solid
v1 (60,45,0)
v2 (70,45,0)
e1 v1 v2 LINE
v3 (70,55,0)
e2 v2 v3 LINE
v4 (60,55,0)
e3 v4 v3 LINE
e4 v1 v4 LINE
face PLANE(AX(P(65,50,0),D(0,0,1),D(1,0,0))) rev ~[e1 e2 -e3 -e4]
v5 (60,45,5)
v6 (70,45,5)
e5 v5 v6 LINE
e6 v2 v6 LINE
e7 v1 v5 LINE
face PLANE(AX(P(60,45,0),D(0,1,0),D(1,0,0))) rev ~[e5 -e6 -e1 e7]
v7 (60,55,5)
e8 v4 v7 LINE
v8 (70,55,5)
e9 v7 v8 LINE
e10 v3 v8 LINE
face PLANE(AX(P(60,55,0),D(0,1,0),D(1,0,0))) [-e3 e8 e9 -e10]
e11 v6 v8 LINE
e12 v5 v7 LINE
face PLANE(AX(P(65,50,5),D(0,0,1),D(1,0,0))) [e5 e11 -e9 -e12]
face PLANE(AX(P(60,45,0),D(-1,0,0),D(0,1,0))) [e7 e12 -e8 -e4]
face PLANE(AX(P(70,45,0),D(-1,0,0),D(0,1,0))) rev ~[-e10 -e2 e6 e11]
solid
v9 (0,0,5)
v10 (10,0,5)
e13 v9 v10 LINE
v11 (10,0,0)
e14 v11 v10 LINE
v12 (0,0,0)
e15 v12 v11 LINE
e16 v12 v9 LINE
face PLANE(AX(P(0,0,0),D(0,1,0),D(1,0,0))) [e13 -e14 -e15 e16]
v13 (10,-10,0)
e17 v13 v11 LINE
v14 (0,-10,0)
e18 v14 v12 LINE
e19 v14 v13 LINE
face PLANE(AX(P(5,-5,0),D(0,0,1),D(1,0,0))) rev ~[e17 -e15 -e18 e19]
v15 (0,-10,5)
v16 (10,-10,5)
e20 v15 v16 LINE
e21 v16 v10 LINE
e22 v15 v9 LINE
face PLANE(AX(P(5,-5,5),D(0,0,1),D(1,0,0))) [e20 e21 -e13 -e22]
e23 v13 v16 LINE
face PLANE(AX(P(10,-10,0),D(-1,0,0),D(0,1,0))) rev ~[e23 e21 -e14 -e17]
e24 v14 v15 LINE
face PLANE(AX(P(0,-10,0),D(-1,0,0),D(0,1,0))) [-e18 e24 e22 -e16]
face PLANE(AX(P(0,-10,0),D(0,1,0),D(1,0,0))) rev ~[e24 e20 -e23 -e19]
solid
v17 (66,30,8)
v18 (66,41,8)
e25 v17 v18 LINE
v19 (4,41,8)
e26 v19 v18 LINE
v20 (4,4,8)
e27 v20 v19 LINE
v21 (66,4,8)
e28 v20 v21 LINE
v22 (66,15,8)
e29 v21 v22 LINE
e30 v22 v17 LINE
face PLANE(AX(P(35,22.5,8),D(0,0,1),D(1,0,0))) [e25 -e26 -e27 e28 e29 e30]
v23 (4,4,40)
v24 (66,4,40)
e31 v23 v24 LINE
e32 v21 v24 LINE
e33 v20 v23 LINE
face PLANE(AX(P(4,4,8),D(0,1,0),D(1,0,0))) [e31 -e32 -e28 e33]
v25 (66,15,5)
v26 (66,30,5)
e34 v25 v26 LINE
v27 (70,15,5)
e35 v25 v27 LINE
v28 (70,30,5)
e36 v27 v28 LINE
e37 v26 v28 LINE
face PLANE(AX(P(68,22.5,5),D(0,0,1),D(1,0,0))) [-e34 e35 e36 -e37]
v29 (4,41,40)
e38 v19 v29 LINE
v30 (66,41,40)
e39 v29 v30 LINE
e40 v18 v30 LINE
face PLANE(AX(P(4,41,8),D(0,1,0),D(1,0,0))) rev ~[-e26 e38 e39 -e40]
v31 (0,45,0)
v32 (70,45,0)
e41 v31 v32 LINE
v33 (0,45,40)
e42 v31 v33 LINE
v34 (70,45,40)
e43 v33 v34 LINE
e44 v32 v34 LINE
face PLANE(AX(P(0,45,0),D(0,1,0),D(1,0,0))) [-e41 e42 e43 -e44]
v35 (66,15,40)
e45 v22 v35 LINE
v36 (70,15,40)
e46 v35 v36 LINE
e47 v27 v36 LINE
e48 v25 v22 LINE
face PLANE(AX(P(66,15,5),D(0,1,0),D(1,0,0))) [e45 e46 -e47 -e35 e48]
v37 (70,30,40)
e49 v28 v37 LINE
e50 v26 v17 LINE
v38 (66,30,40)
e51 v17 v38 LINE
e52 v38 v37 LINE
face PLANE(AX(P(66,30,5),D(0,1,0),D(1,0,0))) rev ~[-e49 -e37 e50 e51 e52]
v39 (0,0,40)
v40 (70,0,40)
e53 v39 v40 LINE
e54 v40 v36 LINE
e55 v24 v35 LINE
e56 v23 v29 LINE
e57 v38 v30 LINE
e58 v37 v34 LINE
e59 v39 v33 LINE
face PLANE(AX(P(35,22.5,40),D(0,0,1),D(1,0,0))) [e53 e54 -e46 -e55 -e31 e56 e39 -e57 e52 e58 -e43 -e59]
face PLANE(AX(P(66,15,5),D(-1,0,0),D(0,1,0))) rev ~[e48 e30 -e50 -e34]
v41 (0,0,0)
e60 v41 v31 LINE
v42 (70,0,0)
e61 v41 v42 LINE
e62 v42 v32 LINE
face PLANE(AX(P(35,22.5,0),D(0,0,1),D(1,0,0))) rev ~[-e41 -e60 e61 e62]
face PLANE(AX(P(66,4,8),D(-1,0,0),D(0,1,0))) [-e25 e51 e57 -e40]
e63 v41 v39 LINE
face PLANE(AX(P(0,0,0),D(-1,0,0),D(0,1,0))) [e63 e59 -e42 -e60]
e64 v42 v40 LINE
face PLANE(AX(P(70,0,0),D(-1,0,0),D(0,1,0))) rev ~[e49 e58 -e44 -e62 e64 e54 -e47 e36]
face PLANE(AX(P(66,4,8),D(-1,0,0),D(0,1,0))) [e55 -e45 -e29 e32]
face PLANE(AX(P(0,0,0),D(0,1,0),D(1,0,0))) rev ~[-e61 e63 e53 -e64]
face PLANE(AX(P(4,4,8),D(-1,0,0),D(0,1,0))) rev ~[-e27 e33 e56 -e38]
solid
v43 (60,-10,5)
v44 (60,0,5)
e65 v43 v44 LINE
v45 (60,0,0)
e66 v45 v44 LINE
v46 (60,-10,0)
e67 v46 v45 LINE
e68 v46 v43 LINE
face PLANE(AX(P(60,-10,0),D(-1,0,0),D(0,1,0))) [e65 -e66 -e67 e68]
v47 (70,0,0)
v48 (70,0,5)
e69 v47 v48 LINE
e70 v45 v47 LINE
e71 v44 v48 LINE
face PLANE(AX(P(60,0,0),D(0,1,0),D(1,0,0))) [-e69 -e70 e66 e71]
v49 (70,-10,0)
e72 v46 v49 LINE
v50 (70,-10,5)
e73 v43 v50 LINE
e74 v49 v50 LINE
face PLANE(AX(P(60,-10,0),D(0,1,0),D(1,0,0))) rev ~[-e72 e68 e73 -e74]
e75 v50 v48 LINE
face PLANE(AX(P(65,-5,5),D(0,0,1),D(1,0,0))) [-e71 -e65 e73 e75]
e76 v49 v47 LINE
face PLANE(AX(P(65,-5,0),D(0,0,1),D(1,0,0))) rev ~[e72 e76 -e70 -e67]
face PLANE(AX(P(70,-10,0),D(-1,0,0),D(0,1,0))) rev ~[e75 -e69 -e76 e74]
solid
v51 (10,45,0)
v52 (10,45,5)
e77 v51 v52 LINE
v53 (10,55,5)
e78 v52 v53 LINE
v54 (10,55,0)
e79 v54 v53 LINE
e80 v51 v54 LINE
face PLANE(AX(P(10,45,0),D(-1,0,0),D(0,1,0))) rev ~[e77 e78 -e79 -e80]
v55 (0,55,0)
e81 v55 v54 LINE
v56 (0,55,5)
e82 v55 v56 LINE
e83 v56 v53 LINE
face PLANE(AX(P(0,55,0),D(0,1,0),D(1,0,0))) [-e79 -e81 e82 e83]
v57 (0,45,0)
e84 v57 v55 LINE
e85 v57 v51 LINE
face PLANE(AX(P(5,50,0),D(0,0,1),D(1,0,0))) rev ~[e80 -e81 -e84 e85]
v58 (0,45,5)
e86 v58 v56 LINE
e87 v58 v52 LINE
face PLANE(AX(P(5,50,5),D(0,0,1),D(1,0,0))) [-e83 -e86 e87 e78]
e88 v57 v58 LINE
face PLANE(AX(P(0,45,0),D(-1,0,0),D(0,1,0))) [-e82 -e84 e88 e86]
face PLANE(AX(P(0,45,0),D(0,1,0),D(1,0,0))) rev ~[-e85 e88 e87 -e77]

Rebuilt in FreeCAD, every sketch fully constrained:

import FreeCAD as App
import Part
import Sketcher
from FreeCAD import Vector
Q = App.Units.Quantity

doc = App.newDocument("Part")
body = doc.addObject("PartDesign::Body", "Body")

# Sketch on XY plane
sketch1 = body.newObject("Sketcher::SketchObject", "Sketch")
sketch1.AttachmentSupport = (doc.getObject("XY_Plane"), [""])
sketch1.MapMode = "FlatFace"
sketch1.addGeometry([
    Part.LineSegment(Vector(0, 0, 0), Vector(0, -10, 0)),
    Part.LineSegment(Vector(0, -10, 0), Vector(10, -10, 0)),
    Part.LineSegment(Vector(10, -10, 0), Vector(10, 0, 0)),
    Part.LineSegment(Vector(10, 0, 0), Vector(0, 0, 0)),
], False)
sketch1.addConstraint([
    Sketcher.Constraint("Coincident", 0, 2, 1, 1),
    Sketcher.Constraint("Coincident", 1, 2, 2, 1),
    Sketcher.Constraint("Coincident", 2, 2, 3, 1),
    Sketcher.Constraint("Coincident", 3, 2, 0, 1),
    Sketcher.Constraint("Vertical", 0),
    Sketcher.Constraint("Horizontal", 1),
    Sketcher.Constraint("Vertical", 2),
    Sketcher.Constraint("Horizontal", 3),
    Sketcher.Constraint("Coincident", 3, 2, -1, 1),
    Sketcher.Constraint("Equal", 3, 0),
    Sketcher.Constraint("DistanceX", 1, 1, 1, 2, Q("10 mm")),
])
pad1 = body.newObject("PartDesign::Pad", "Pad")
pad1.Profile = sketch1
pad1.Length = 5
body2 = doc.addObject("PartDesign::Body", "Body001")

# Sketch on XY plane
sketch2 = body2.newObject("Sketcher::SketchObject", "Sketch001")
sketch2.AttachmentSupport = (doc.getObject("XY_Plane001"), [""])
sketch2.MapMode = "FlatFace"
sketch2.addGeometry([
    Part.LineSegment(Vector(60, 0, 0), Vector(60, -10, 0)),
    Part.LineSegment(Vector(60, -10, 0), Vector(70, -10, 0)),
    Part.LineSegment(Vector(70, -10, 0), Vector(70, 0, 0)),
    Part.LineSegment(Vector(70, 0, 0), Vector(60, 0, 0)),
], False)
sketch2.addConstraint([
    Sketcher.Constraint("Coincident", 0, 2, 1, 1),
    Sketcher.Constraint("Coincident", 1, 2, 2, 1),
    Sketcher.Constraint("Coincident", 2, 2, 3, 1),
    Sketcher.Constraint("Coincident", 3, 2, 0, 1),
    Sketcher.Constraint("Vertical", 0),
    Sketcher.Constraint("Horizontal", 1),
    Sketcher.Constraint("Vertical", 2),
    Sketcher.Constraint("Horizontal", 3),
    Sketcher.Constraint("PointOnObject", 2, 2, -1),
    Sketcher.Constraint("Equal", 3, 0),
    Sketcher.Constraint("DistanceX", 1, 1, 1, 2, Q("10 mm")),
    Sketcher.Constraint("DistanceX", -1, 1, 0, 2, Q("60 mm")),
])
pad2 = body2.newObject("PartDesign::Pad", "Pad001")
pad2.Profile = sketch2
pad2.Length = 5
body3 = doc.addObject("PartDesign::Body", "Body002")

# Sketch on XY plane
sketch3 = body3.newObject("Sketcher::SketchObject", "Sketch002")
sketch3.AttachmentSupport = (doc.getObject("XY_Plane002"), [""])
sketch3.MapMode = "FlatFace"
sketch3.addGeometry([
    Part.LineSegment(Vector(0, 55, 0), Vector(0, 45, 0)),
    Part.LineSegment(Vector(0, 45, 0), Vector(10, 45, 0)),
    Part.LineSegment(Vector(10, 45, 0), Vector(10, 55, 0)),
    Part.LineSegment(Vector(10, 55, 0), Vector(0, 55, 0)),
], False)
sketch3.addConstraint([
    Sketcher.Constraint("Coincident", 0, 2, 1, 1),
    Sketcher.Constraint("Coincident", 1, 2, 2, 1),
    Sketcher.Constraint("Coincident", 2, 2, 3, 1),
    Sketcher.Constraint("Coincident", 3, 2, 0, 1),
    Sketcher.Constraint("Vertical", 0),
    Sketcher.Constraint("Horizontal", 1),
    Sketcher.Constraint("Vertical", 2),
    Sketcher.Constraint("Horizontal", 3),
    Sketcher.Constraint("PointOnObject", 0, 2, -2),
    Sketcher.Constraint("Equal", 3, 0),
    Sketcher.Constraint("DistanceX", 1, 1, 1, 2, Q("10 mm")),
    Sketcher.Constraint("DistanceY", -1, 1, 0, 2, Q("45 mm")),
])
pad3 = body3.newObject("PartDesign::Pad", "Pad002")
pad3.Profile = sketch3
pad3.Length = 5
body4 = doc.addObject("PartDesign::Body", "Body003")

# Sketch on XY plane
sketch4 = body4.newObject("Sketcher::SketchObject", "Sketch003")
sketch4.AttachmentSupport = (doc.getObject("XY_Plane003"), [""])
sketch4.MapMode = "FlatFace"
sketch4.addGeometry([
    Part.LineSegment(Vector(60, 55, 0), Vector(60, 45, 0)),
    Part.LineSegment(Vector(60, 45, 0), Vector(70, 45, 0)),
    Part.LineSegment(Vector(70, 45, 0), Vector(70, 55, 0)),
    Part.LineSegment(Vector(70, 55, 0), Vector(60, 55, 0)),
], False)
sketch4.addConstraint([
    Sketcher.Constraint("Coincident", 0, 2, 1, 1),
    Sketcher.Constraint("Coincident", 1, 2, 2, 1),
    Sketcher.Constraint("Coincident", 2, 2, 3, 1),
    Sketcher.Constraint("Coincident", 3, 2, 0, 1),
    Sketcher.Constraint("Vertical", 0),
    Sketcher.Constraint("Horizontal", 1),
    Sketcher.Constraint("Vertical", 2),
    Sketcher.Constraint("Horizontal", 3),
    Sketcher.Constraint("Equal", 3, 0),
    Sketcher.Constraint("DistanceX", 1, 1, 1, 2, Q("10 mm")),
    Sketcher.Constraint("DistanceX", -1, 1, 0, 2, Q("60 mm")),
    Sketcher.Constraint("DistanceY", -1, 1, 0, 2, Q("45 mm")),
])
pad4 = body4.newObject("PartDesign::Pad", "Pad003")
pad4.Profile = sketch4
pad4.Length = 5
body5 = doc.addObject("PartDesign::Body", "Body004")

# Sketch on XY plane
sketch5 = body5.newObject("Sketcher::SketchObject", "Sketch004")
sketch5.AttachmentSupport = (doc.getObject("XY_Plane004"), [""])
sketch5.MapMode = "FlatFace"
sketch5.AttachmentOffset = App.Placement(Vector(0, 0, 5), App.Rotation())
sketch5.addGeometry([
    Part.LineSegment(Vector(66, 30, 0), Vector(66, 15, 0)),
    Part.LineSegment(Vector(66, 15, 0), Vector(70, 15, 0)),
    Part.LineSegment(Vector(70, 15, 0), Vector(70, 30, 0)),
    Part.LineSegment(Vector(70, 30, 0), Vector(66, 30, 0)),
], False)
sketch5.addConstraint([
    Sketcher.Constraint("Coincident", 0, 2, 1, 1),
    Sketcher.Constraint("Coincident", 1, 2, 2, 1),
    Sketcher.Constraint("Coincident", 2, 2, 3, 1),
    Sketcher.Constraint("Coincident", 3, 2, 0, 1),
    Sketcher.Constraint("Vertical", 0),
    Sketcher.Constraint("Horizontal", 1),
    Sketcher.Constraint("Vertical", 2),
    Sketcher.Constraint("Horizontal", 3),
    Sketcher.Constraint("DistanceX", 1, 1, 1, 2, Q("4 mm")),
    Sketcher.Constraint("DistanceY", 0, 2, 0, 1, Q("15 mm")),
    Sketcher.Constraint("DistanceX", -1, 1, 0, 2, Q("66 mm")),
    Sketcher.Constraint("DistanceY", -1, 1, 0, 2, Q("15 mm")),
])
pad5 = body5.newObject("PartDesign::Pad", "Pad004")
pad5.Profile = sketch5
pad5.Length = 35
body6 = doc.addObject("PartDesign::Body", "Body005")

# Sketch on XY plane
sketch6 = body6.newObject("Sketcher::SketchObject", "Sketch005")
sketch6.AttachmentSupport = (doc.getObject("XY_Plane005"), [""])
sketch6.MapMode = "FlatFace"
sketch6.AttachmentOffset = App.Placement(Vector(0, 0, 8), App.Rotation())
sketch6.addGeometry([
    Part.LineSegment(Vector(4, 41, 0), Vector(4, 4, 0)),
    Part.LineSegment(Vector(4, 4, 0), Vector(66, 4, 0)),
    Part.LineSegment(Vector(66, 4, 0), Vector(66, 41, 0)),
    Part.LineSegment(Vector(66, 41, 0), Vector(4, 41, 0)),
], False)
sketch6.addConstraint([
    Sketcher.Constraint("Coincident", 0, 2, 1, 1),
    Sketcher.Constraint("Coincident", 1, 2, 2, 1),
    Sketcher.Constraint("Coincident", 2, 2, 3, 1),
    Sketcher.Constraint("Coincident", 3, 2, 0, 1),
    Sketcher.Constraint("Vertical", 0),
    Sketcher.Constraint("Horizontal", 1),
    Sketcher.Constraint("Vertical", 2),
    Sketcher.Constraint("Horizontal", 3),
    Sketcher.Constraint("DistanceX", 1, 1, 1, 2, Q("62 mm")),
    Sketcher.Constraint("DistanceY", 0, 2, 0, 1, Q("37 mm")),
    Sketcher.Constraint("DistanceX", -1, 1, 0, 2, Q("4 mm")),
    Sketcher.Constraint("DistanceY", -1, 1, 0, 2, Q("4 mm")),
])
pad6 = body6.newObject("PartDesign::Pad", "Pad005")
pad6.Profile = sketch6
pad6.Length = 32
body7 = doc.addObject("PartDesign::Body", "Body006")

# Sketch on XY plane
sketch7 = body7.newObject("Sketcher::SketchObject", "Sketch006")
sketch7.AttachmentSupport = (doc.getObject("XY_Plane006"), [""])
sketch7.MapMode = "FlatFace"
sketch7.addGeometry([
    Part.LineSegment(Vector(0, 45, 0), Vector(0, 0, 0)),
    Part.LineSegment(Vector(0, 0, 0), Vector(70, 0, 0)),
    Part.LineSegment(Vector(70, 0, 0), Vector(70, 45, 0)),
    Part.LineSegment(Vector(70, 45, 0), Vector(0, 45, 0)),
], False)
sketch7.addConstraint([
    Sketcher.Constraint("Coincident", 0, 2, 1, 1),
    Sketcher.Constraint("Coincident", 1, 2, 2, 1),
    Sketcher.Constraint("Coincident", 2, 2, 3, 1),
    Sketcher.Constraint("Coincident", 3, 2, 0, 1),
    Sketcher.Constraint("Vertical", 0),
    Sketcher.Constraint("Horizontal", 1),
    Sketcher.Constraint("Vertical", 2),
    Sketcher.Constraint("Horizontal", 3),
    Sketcher.Constraint("Coincident", 0, 2, -1, 1),
    Sketcher.Constraint("DistanceX", 1, 1, 1, 2, Q("70 mm")),
    Sketcher.Constraint("DistanceY", 0, 2, 0, 1, Q("45 mm")),
])
pad7 = body7.newObject("PartDesign::Pad", "Pad006")
pad7.Profile = sketch7
pad7.Length = 40
doc.recompute()

boolean = body7.newObject("PartDesign::Boolean", "Boolean")
boolean.Type = "Cut"
boolean.addObjects([body6])
doc.recompute()

boolean2 = body7.newObject("PartDesign::Boolean", "Boolean001")
boolean2.Type = "Cut"
boolean2.addObjects([body5])

doc.recompute()
